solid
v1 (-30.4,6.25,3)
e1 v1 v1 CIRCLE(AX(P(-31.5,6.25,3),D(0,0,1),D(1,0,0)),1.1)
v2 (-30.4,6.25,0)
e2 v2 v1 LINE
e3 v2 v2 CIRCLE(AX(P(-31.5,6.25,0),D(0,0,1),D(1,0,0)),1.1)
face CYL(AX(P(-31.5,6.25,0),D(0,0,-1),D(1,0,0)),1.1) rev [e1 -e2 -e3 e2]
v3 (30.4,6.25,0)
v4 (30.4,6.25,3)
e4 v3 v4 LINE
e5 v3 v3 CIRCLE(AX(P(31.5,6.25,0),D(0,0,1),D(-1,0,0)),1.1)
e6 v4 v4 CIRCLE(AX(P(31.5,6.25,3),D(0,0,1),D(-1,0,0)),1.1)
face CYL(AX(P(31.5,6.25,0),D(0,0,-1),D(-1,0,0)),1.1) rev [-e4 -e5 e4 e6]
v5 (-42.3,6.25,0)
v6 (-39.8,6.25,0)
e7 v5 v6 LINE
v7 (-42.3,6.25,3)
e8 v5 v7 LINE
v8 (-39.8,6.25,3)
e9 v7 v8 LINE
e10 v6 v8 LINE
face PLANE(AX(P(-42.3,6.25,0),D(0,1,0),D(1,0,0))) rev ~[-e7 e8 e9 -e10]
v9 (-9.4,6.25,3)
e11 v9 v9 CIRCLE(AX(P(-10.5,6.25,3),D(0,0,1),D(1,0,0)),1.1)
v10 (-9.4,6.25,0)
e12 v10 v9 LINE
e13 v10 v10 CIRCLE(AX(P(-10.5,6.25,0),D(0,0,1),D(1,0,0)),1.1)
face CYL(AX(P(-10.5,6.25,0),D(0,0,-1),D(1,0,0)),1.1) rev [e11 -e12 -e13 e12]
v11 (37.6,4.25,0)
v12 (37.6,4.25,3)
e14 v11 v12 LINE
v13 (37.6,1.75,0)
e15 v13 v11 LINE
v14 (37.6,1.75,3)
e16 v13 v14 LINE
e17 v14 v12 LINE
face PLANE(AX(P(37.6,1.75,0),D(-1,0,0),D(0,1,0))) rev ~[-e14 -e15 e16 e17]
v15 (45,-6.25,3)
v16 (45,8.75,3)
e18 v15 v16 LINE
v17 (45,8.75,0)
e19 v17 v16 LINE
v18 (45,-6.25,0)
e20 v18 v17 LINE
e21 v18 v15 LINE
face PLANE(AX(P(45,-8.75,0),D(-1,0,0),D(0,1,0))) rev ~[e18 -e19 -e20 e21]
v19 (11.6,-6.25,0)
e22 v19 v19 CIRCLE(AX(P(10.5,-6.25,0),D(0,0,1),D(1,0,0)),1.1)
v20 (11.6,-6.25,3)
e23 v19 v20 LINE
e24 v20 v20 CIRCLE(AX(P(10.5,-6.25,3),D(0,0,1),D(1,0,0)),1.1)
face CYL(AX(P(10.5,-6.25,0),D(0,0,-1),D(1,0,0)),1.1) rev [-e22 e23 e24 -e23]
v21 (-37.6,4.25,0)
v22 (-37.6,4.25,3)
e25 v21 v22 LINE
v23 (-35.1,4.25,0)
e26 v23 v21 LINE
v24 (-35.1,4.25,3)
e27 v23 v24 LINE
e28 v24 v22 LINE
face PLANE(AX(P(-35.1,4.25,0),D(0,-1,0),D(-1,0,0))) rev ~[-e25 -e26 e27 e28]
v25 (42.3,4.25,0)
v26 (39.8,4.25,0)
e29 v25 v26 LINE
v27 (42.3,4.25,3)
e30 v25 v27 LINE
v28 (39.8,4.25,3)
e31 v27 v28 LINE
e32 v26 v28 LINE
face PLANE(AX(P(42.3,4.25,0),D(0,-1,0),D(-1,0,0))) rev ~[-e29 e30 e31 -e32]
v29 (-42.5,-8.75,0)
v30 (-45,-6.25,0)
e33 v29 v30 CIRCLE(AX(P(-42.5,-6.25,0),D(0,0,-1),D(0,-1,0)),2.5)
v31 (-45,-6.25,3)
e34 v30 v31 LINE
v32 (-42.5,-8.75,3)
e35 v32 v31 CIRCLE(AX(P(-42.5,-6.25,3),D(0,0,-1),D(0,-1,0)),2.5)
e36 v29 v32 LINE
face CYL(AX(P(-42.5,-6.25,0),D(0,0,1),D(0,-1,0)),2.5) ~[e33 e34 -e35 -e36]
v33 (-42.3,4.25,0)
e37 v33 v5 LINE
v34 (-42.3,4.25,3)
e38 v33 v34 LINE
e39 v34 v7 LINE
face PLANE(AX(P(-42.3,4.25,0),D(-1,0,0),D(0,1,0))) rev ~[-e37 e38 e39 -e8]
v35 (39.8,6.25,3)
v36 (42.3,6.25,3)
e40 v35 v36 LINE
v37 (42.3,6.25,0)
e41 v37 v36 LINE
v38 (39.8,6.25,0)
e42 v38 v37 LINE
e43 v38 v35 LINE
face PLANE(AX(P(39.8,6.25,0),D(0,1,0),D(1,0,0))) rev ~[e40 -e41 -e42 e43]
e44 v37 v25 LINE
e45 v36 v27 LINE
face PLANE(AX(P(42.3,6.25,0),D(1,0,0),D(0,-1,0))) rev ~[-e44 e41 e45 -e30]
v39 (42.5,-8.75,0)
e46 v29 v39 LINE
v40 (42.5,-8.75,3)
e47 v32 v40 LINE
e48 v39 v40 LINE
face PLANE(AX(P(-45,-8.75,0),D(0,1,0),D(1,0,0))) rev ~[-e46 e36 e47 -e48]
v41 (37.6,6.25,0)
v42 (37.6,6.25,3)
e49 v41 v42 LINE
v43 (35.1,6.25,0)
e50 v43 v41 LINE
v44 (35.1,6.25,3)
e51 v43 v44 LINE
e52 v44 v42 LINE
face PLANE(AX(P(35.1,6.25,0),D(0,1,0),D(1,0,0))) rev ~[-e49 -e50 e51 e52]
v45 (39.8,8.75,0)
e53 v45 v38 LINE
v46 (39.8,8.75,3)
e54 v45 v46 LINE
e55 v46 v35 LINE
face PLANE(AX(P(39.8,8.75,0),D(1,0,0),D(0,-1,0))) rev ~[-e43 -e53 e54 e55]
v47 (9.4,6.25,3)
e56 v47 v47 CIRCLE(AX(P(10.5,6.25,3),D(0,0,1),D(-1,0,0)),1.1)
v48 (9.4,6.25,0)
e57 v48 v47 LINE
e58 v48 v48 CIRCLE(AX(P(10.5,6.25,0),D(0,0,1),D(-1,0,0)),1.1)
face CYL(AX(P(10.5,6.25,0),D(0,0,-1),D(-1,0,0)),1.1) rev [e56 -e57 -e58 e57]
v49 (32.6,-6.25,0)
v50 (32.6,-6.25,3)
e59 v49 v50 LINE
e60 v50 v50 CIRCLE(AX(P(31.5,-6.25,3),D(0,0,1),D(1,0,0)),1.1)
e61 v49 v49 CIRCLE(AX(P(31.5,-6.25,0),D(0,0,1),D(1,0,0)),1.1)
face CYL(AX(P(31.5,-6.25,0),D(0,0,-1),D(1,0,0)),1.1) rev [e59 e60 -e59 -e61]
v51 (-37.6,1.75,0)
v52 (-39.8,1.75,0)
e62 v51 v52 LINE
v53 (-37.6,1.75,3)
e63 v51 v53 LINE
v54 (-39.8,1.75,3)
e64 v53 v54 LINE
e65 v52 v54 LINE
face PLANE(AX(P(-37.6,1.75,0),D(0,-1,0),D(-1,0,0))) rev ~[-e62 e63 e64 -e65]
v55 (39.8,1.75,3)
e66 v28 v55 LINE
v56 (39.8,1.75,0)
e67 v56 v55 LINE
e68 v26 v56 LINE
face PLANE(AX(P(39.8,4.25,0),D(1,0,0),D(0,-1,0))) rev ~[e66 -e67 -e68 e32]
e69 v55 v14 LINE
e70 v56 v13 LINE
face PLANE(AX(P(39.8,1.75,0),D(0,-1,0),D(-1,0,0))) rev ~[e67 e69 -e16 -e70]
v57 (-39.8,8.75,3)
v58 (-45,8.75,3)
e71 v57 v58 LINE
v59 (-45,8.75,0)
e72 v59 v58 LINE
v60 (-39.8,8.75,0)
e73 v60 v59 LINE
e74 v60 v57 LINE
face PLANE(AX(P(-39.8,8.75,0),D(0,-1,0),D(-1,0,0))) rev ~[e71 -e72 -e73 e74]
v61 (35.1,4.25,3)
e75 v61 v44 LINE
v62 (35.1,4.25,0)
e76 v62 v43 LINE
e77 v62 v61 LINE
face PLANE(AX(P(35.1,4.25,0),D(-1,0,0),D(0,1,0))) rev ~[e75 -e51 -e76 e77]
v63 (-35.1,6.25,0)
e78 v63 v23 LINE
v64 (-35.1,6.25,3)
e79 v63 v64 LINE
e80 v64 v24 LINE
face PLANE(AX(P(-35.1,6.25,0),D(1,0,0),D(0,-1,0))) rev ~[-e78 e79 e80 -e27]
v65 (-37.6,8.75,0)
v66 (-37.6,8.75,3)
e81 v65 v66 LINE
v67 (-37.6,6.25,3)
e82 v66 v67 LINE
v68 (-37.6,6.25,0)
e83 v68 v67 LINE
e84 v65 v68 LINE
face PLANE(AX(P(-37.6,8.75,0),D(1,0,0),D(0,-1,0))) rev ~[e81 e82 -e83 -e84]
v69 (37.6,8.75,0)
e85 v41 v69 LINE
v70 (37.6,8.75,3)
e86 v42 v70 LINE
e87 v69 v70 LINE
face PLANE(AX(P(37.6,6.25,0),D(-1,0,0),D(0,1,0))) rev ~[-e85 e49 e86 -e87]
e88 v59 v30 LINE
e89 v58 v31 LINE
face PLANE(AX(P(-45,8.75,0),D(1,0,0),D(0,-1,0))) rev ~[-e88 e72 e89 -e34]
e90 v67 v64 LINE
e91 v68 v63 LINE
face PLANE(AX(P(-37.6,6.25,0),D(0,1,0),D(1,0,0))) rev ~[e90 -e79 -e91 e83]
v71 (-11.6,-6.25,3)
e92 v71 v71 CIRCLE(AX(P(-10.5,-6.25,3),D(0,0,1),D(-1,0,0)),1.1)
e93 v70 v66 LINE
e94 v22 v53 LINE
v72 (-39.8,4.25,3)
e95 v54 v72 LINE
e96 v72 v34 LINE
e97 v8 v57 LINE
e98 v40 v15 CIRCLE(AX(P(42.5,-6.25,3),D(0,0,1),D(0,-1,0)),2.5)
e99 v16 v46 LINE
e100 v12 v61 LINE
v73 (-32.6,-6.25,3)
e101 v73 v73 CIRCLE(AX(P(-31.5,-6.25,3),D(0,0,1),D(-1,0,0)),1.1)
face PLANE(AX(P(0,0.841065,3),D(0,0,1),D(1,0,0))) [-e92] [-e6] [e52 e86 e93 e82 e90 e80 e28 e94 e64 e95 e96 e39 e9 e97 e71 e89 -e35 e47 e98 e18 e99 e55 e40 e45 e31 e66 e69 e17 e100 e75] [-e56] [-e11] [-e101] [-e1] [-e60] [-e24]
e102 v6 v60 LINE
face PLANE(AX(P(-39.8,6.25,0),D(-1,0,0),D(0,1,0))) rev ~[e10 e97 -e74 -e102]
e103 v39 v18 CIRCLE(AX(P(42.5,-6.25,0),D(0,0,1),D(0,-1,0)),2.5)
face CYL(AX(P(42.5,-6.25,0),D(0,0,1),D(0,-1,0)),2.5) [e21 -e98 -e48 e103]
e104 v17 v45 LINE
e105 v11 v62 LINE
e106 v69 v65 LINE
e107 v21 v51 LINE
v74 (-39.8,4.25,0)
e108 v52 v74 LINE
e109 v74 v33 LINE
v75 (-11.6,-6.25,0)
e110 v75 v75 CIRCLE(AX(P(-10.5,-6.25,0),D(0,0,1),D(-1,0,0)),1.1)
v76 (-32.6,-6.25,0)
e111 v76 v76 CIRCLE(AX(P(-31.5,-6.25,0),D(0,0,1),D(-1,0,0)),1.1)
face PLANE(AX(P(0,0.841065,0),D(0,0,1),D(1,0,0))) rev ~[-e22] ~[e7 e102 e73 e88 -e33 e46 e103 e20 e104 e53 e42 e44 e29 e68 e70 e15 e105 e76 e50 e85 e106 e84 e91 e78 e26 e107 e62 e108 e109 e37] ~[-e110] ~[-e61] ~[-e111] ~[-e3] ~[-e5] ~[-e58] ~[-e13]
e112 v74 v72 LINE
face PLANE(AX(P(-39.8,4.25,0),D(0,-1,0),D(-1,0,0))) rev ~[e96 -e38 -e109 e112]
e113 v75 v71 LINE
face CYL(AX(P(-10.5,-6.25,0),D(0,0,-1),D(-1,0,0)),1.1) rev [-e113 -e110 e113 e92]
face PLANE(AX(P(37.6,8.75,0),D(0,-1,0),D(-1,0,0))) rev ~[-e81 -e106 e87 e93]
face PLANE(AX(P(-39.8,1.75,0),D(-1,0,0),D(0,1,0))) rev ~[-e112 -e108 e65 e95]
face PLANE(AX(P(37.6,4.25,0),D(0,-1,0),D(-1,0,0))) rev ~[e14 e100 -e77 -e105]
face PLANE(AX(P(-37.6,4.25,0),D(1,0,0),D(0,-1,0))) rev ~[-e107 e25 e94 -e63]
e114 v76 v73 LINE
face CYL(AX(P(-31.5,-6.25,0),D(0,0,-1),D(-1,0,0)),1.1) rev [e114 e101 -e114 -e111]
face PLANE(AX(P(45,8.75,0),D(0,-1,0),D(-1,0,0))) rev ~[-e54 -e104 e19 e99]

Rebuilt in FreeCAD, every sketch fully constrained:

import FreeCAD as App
import Part
import Sketcher
Q = App.Units.Quantity


def edges_at(feature, points):
    """Names of the edges that pass closest to the given points."""
    edges = feature.Shape.Edges
    near = lambda p: min(range(len(edges)), key=lambda i: edges[i].distToShape(Part.Vertex(*p))[0])
    return sorted({f"Edge{near(p) + 1}" for p in points})

doc = App.newDocument("Part")
params = doc.addObject("Spreadsheet::Sheet", "Params")
for row, (alias, value) in enumerate([
    ("sketch1_diameter", "2.2 mm"),
    ("sketch1_width", "90 mm"),
    ("sketch1_height", "2 mm"),
    ("sketch1_width2", "5.2 mm"),
    ("sketch1_width3", "2.5 mm"),
    ("pad1_length", "3 mm"),
    ("fillet_radius", "2.5 mm"),
], start=1):
    params.set(f"A{row}", alias)
    params.set(f"B{row}", "=" + value)
    params.setAlias(f"B{row}", alias)

body = doc.addObject("PartDesign::Body", "Body")

# Sketch on XY plane
sketch1 = body.newObject("Sketcher::SketchObject", "Sketch")
sketch1.AttachmentSupport = (doc.getObject("XY_Plane"), [""])
sketch1.MapMode = "FlatFace"
sketch1.addGeometry(Part.LineSegment(App.Vector(-45, -8.8, 0), App.Vector(45, -8.8, 0)), False)
sketch1.addGeometry(Part.LineSegment(App.Vector(45, -8.8, 0), App.Vector(45, 8.8, 0)), False)
sketch1.addGeometry(Part.LineSegment(App.Vector(45, 8.8, 0), App.Vector(39.8, 8.8, 0)), False)
sketch1.addGeometry(Part.LineSegment(App.Vector(39.8, 8.8, 0), App.Vector(39.8, 6.2, 0)), False)
sketch1.addGeometry(Part.LineSegment(App.Vector(39.8, 6.2, 0), App.Vector(42.3, 6.2, 0)), False)
sketch1.addGeometry(Part.LineSegment(App.Vector(42.3, 6.2, 0), App.Vector(42.3, 4.2, 0)), False)
sketch1.addGeometry(Part.LineSegment(App.Vector(42.3, 4.2, 0), App.Vector(39.8, 4.2, 0)), False)
sketch1.addGeometry(Part.LineSegment(App.Vector(39.8, 4.2, 0), App.Vector(39.8, 1.8, 0)), False)
sketch1.addGeometry(Part.LineSegment(App.Vector(39.8, 1.8, 0), App.Vector(37.6, 1.8, 0)), False)
sketch1.addGeometry(Part.LineSegment(App.Vector(37.6, 1.8, 0), App.Vector(37.6, 4.2, 0)), False)
sketch1.addGeometry(Part.LineSegment(App.Vector(37.6, 4.2, 0), App.Vector(35.1, 4.2, 0)), False)
sketch1.addGeometry(Part.LineSegment(App.Vector(35.1, 4.2, 0), App.Vector(35.1, 6.2, 0)), False)
sketch1.addGeometry(Part.LineSegment(App.Vector(35.1, 6.2, 0), App.Vector(37.6, 6.2, 0)), False)
sketch1.addGeometry(Part.LineSegment(App.Vector(37.6, 6.2, 0), App.Vector(37.6, 8.8, 0)), False)
sketch1.addGeometry(Part.LineSegment(App.Vector(37.6, 8.8, 0), App.Vector(-37.6, 8.8, 0)), False)
sketch1.addGeometry(Part.LineSegment(App.Vector(-37.6, 8.8, 0), App.Vector(-37.6, 6.2, 0)), False)
sketch1.addGeometry(Part.LineSegment(App.Vector(-37.6, 6.2, 0), App.Vector(-35.1, 6.2, 0)), False)
sketch1.addGeometry(Part.LineSegment(App.Vector(-35.1, 6.2, 0), App.Vector(-35.1, 4.2, 0)), False)
sketch1.addGeometry(Part.LineSegment(App.Vector(-35.1, 4.2, 0), App.Vector(-37.6, 4.2, 0)), False)
sketch1.addGeometry(Part.LineSegment(App.Vector(-37.6, 4.2, 0), App.Vector(-37.6, 1.8, 0)), False)
sketch1.addGeometry(Part.LineSegment(App.Vector(-37.6, 1.8, 0), App.Vector(-39.8, 1.8, 0)), False)
sketch1.addGeometry(Part.LineSegment(App.Vector(-39.8, 1.8, 0), App.Vector(-39.8, 4.2, 0)), False)
sketch1.addGeometry(Part.LineSegment(App.Vector(-39.8, 4.2, 0), App.Vector(-42.3, 4.2, 0)), False)
sketch1.addGeometry(Part.LineSegment(App.Vector(-42.3, 4.2, 0), App.Vector(-42.3, 6.2, 0)), False)
sketch1.addGeometry(Part.LineSegment(App.Vector(-42.3, 6.2, 0), App.Vector(-39.8, 6.2, 0)), False)
sketch1.addGeometry(Part.LineSegment(App.Vector(-39.8, 6.2, 0), App.Vector(-39.8, 8.8, 0)), False)
sketch1.addGeometry(Part.LineSegment(App.Vector(-39.8, 8.8, 0), App.Vector(-45, 8.8, 0)), False)
sketch1.addGeometry(Part.LineSegment(App.Vector(-45, 8.8, 0), App.Vector(-45, -8.8, 0)), False)
sketch1.addGeometry(Part.Circle(App.Vector(-31.5, -6.2, 0), App.Vector(0, 0, 1), 1.1), False)
sketch1.addGeometry(Part.Circle(App.Vector(-10.5, -6.2, 0), App.Vector(0, 0, 1), 1.1), False)
sketch1.addGeometry(Part.Circle(App.Vector(10.5, -6.2, 0), App.Vector(0, 0, 1), 1.1), False)
sketch1.addGeometry(Part.Circle(App.Vector(31.5, -6.2, 0), App.Vector(0, 0, 1), 1.1), False)
sketch1.addGeometry(Part.Circle(App.Vector(-31.5, 6.2, 0), App.Vector(0, 0, 1), 1.1), False)
sketch1.addGeometry(Part.Circle(App.Vector(-10.5, 6.2, 0), App.Vector(0, 0, 1), 1.1), False)
sketch1.addGeometry(Part.Circle(App.Vector(10.5, 6.2, 0), App.Vector(0, 0, 1), 1.1), False)
sketch1.addGeometry(Part.Circle(App.Vector(31.5, 6.2, 0), App.Vector(0, 0, 1), 1.1), False)
sketch1.addConstraint(Sketcher.Constraint("Coincident", 0, 2, 1, 1))
sketch1.addConstraint(Sketcher.Constraint("Coincident", 1, 2, 2, 1))
sketch1.addConstraint(Sketcher.Constraint("Coincident", 2, 2, 3, 1))
sketch1.addConstraint(Sketcher.Constraint("Coincident", 3, 2, 4, 1))
sketch1.addConstraint(Sketcher.Constraint("Coincident", 4, 2, 5, 1))
sketch1.addConstraint(Sketcher.Constraint("Coincident", 5, 2, 6, 1))
sketch1.addConstraint(Sketcher.Constraint("Coincident", 6, 2, 7, 1))
sketch1.addConstraint(Sketcher.Constraint("Coincident", 7, 2, 8, 1))
sketch1.addConstraint(Sketcher.Constraint("Coincident", 8, 2, 9, 1))
sketch1.addConstraint(Sketcher.Constraint("Coincident", 9, 2, 10, 1))
sketch1.addConstraint(Sketcher.Constraint("Coincident", 10, 2, 11, 1))
sketch1.addConstraint(Sketcher.Constraint("Coincident", 11, 2, 12, 1))
sketch1.addConstraint(Sketcher.Constraint("Coincident", 12, 2, 13, 1))
sketch1.addConstraint(Sketcher.Constraint("Coincident", 13, 2, 14, 1))
sketch1.addConstraint(Sketcher.Constraint("Coincident", 14, 2, 15, 1))
sketch1.addConstraint(Sketcher.Constraint("Coincident", 15, 2, 16, 1))
sketch1.addConstraint(Sketcher.Constraint("Coincident", 16, 2, 17, 1))
sketch1.addConstraint(Sketcher.Constraint("Coincident", 17, 2, 18, 1))
sketch1.addConstraint(Sketcher.Constraint("Coincident", 18, 2, 19, 1))
sketch1.addConstraint(Sketcher.Constraint("Coincident", 19, 2, 20, 1))
sketch1.addConstraint(Sketcher.Constraint("Coincident", 20, 2, 21, 1))
sketch1.addConstraint(Sketcher.Constraint("Coincident", 21, 2, 22, 1))
sketch1.addConstraint(Sketcher.Constraint("Coincident", 22, 2, 23, 1))
sketch1.addConstraint(Sketcher.Constraint("Coincident", 23, 2, 24, 1))
sketch1.addConstraint(Sketcher.Constraint("Coincident", 24, 2, 25, 1))
sketch1.addConstraint(Sketcher.Constraint("Coincident", 25, 2, 26, 1))
sketch1.addConstraint(Sketcher.Constraint("Coincident", 26, 2, 27, 1))
sketch1.addConstraint(Sketcher.Constraint("Coincident", 27, 2, 0, 1))
sketch1.addConstraint(Sketcher.Constraint("Horizontal", 0))
sketch1.addConstraint(Sketcher.Constraint("Vertical", 1))
sketch1.addConstraint(Sketcher.Constraint("Horizontal", 2))
sketch1.addConstraint(Sketcher.Constraint("Vertical", 3))
sketch1.addConstraint(Sketcher.Constraint("Horizontal", 4))
sketch1.addConstraint(Sketcher.Constraint("Vertical", 5))
sketch1.addConstraint(Sketcher.Constraint("Horizontal", 6))
sketch1.addConstraint(Sketcher.Constraint("Vertical", 7))
sketch1.addConstraint(Sketcher.Constraint("Horizontal", 8))
sketch1.addConstraint(Sketcher.Constraint("Vertical", 9))
sketch1.addConstraint(Sketcher.Constraint("Horizontal", 10))
sketch1.addConstraint(Sketcher.Constraint("Vertical", 11))
sketch1.addConstraint(Sketcher.Constraint("Horizontal", 12))
sketch1.addConstraint(Sketcher.Constraint("Vertical", 13))
sketch1.addConstraint(Sketcher.Constraint("Horizontal", 14))
sketch1.addConstraint(Sketcher.Constraint("Vertical", 15))
sketch1.addConstraint(Sketcher.Constraint("Horizontal", 16))
sketch1.addConstraint(Sketcher.Constraint("Vertical", 17))
sketch1.addConstraint(Sketcher.Constraint("Horizontal", 18))
sketch1.addConstraint(Sketcher.Constraint("Vertical", 19))
sketch1.addConstraint(Sketcher.Constraint("Horizontal", 20))
sketch1.addConstraint(Sketcher.Constraint("Vertical", 21))
sketch1.addConstraint(Sketcher.Constraint("Horizontal", 22))
sketch1.addConstraint(Sketcher.Constraint("Vertical", 23))
sketch1.addConstraint(Sketcher.Constraint("Horizontal", 24))
sketch1.addConstraint(Sketcher.Constraint("Vertical", 25))
sketch1.addConstraint(Sketcher.Constraint("Horizontal", 26))
sketch1.addConstraint(Sketcher.Constraint("Vertical", 27))
sketch1.addConstraint(Sketcher.Constraint("Equal", 28, 29))
sketch1.addConstraint(Sketcher.Constraint("Equal", 29, 30))
sketch1.addConstraint(Sketcher.Constraint("Equal", 30, 31))
sketch1.addConstraint(Sketcher.Constraint("Equal", 31, 32))
sketch1.addConstraint(Sketcher.Constraint("Equal", 32, 33))
sketch1.addConstraint(Sketcher.Constraint("Equal", 33, 34))
sketch1.addConstraint(Sketcher.Constraint("Equal", 34, 35))
sketch1.addConstraint(Sketcher.Constraint("Symmetric", 31, 3, 32, 3, -1, 1))
sketch1.addConstraint(Sketcher.Constraint("Symmetric", 30, 3, 33, 3, -1, 1))
sketch1.addConstraint(Sketcher.Constraint("Symmetric", 29, 3, 34, 3, -1, 1))
sketch1.addConstraint(Sketcher.Constraint("Symmetric", 28, 3, 35, 3, -1, 1))
sketch1.addConstraint(Sketcher.Constraint("Symmetric", 0, 2, 26, 2, -1, 1))
sketch1.addConstraint(Sketcher.Constraint("Symmetric", 29, 3, 30, 3, -2))
sketch1.addConstraint(Sketcher.Constraint("Symmetric", 28, 3, 31, 3, -2))
sketch1.addConstraint(Sketcher.Constraint("Symmetric", 12, 2, 15, 2, -2))
sketch1.addConstraint(Sketcher.Constraint("Symmetric", 10, 2, 17, 2, -2))
sketch1.addConstraint(Sketcher.Constraint("Symmetric", 8, 2, 19, 2, -2))
sketch1.addConstraint(Sketcher.Constraint("Symmetric", 6, 2, 21, 2, -2))
sketch1.addConstraint(Sketcher.Constraint("Symmetric", 4, 2, 23, 2, -2))
sketch1.addConstraint(Sketcher.Constraint("Symmetric", 2, 2, 25, 2, -2))
sketch1.addConstraint(Sketcher.Constraint("Horizontal", 28, 3, 29, 3))
sketch1.addConstraint(Sketcher.Constraint("Horizontal", 35, 3, 3, 2))
sketch1.addConstraint(Sketcher.Constraint("Horizontal", 6, 2, 9, 2))
sketch1.addConstraint(Sketcher.Constraint("Horizontal", 4, 2, 11, 2))
sketch1.addConstraint(Sketcher.Constraint("Horizontal", 2, 2, 13, 2))
sketch1.addConstraint(Sketcher.Constraint("Vertical", 3, 2, 6, 2))
sketch1.addConstraint(Sketcher.Constraint("Vertical", 9, 2, 12, 2))
sketch1.addConstraint(Sketcher.Constraint("Equal", 6, 10))
sketch1.addConstraint(Sketcher.Constraint("Equal", 24, 3))
sketch1.addConstraint(Sketcher.Constraint("Equal", 3, 7))
sketch1.addConstraint(Sketcher.Constraint("Diameter", 28, Q("2.2 mm")))
sketch1.addConstraint(Sketcher.Constraint("DistanceX", 0, 1, 0, 2, Q("90 mm")))
sketch1.addConstraint(Sketcher.Constraint("DistanceY", 5, 2, 5, 1, Q("2 mm")))
sketch1.addConstraint(Sketcher.Constraint("DistanceX", 2, 2, 2, 1, Q("5.2 mm")))
sketch1.addConstraint(Sketcher.Constraint("DistanceX", 4, 1, 4, 2, Q("2.5 mm")))
sketch1.addConstraint(Sketcher.Constraint("DistanceX", 8, 2, 8, 1, Q("2.2 mm")))
sketch1.addConstraint(Sketcher.Constraint("DistanceY", 1, 1, 1, 2, Q("17.5 mm")))
sketch1.addConstraint(Sketcher.Constraint("DistanceX", 28, 3, 29, 3, Q("21 mm")))
sketch1.addConstraint(Sketcher.Constraint("DistanceX", 29, 3, 30, 3, Q("21 mm")))
sketch1.setExpression("Constraints[86]", "Params.sketch1_diameter")
sketch1.setExpression("Constraints[87]", "Params.sketch1_width")
sketch1.setExpression("Constraints[88]", "Params.sketch1_height")
sketch1.setExpression("Constraints[89]", "Params.sketch1_width2")
sketch1.setExpression("Constraints[90]", "Params.sketch1_width3")
pad1 = body.newObject("PartDesign::Pad", "Pad")
pad1.Profile = sketch1
pad1.setExpression("Length", "Params.pad1_length")
doc.recompute()

fillet = body.newObject("PartDesign::Fillet", "Fillet")
fillet.Base = (pad1, edges_at(pad1, [(45, -8.75, 1.5), (-45, -8.75, 1.5)]))
fillet.setExpression("Radius", "Params.fillet_radius")

doc.recompute()
